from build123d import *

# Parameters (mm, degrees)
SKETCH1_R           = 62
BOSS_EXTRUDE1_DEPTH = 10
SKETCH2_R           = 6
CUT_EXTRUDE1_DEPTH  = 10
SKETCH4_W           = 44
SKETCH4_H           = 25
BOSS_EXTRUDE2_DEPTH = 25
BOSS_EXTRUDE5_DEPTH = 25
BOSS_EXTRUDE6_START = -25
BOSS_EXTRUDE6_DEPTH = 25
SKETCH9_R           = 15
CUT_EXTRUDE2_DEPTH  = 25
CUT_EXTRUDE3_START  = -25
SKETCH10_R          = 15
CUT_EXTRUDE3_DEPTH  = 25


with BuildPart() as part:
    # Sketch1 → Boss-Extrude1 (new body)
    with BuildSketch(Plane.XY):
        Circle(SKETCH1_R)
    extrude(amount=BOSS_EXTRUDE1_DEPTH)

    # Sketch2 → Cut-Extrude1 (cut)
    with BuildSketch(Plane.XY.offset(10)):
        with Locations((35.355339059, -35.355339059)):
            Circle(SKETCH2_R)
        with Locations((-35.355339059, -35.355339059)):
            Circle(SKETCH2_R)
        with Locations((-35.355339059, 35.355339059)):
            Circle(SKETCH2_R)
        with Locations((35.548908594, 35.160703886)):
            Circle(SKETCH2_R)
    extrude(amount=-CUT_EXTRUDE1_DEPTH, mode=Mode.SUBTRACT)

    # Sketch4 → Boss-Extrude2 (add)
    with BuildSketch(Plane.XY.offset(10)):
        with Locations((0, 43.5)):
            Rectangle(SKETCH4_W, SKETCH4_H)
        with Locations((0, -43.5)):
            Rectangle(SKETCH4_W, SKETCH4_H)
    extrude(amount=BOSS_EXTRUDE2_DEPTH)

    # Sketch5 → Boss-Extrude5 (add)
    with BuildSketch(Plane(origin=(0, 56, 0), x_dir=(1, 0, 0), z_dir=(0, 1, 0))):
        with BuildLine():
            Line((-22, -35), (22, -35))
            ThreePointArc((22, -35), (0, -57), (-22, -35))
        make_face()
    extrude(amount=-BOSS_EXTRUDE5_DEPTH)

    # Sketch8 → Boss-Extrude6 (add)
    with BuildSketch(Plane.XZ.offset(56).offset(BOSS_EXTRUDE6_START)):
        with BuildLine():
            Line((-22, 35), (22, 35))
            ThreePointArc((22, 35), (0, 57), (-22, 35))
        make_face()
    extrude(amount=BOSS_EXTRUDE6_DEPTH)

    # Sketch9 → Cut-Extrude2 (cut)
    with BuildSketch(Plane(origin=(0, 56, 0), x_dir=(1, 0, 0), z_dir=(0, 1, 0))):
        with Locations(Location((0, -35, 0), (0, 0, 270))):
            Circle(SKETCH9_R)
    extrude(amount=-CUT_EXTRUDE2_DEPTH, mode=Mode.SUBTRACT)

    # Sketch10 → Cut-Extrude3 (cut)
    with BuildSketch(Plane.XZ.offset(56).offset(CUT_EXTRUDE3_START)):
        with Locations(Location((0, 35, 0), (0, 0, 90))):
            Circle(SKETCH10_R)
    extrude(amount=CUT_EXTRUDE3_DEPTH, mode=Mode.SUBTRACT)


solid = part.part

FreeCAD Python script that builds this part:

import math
import FreeCAD as App
import Part
import Sketcher

doc = App.newDocument("Part")
body = doc.addObject("PartDesign::Body", "Body")

sketch1 = body.newObject("Sketcher::SketchObject", "Sketch")
sketch1.AttachmentSupport = (doc.getObject("XY_Plane"), [""])
sketch1.MapMode = "FlatFace"
sketch1.addGeometry(Part.Circle(App.Vector(0, 0, 0), App.Vector(0, 0, 1), 62), False)
sketch1.addConstraint(Sketcher.Constraint("Coincident", 0, 3, -1, 1))
sketch1.addConstraint(Sketcher.Constraint("Diameter", 0, 124.0))
pad1 = body.newObject("PartDesign::Pad", "Pad")
pad1.Profile = sketch1
pad1.Length = 10

sketch2 = body.newObject("Sketcher::SketchObject", "Sketch001")
sketch2.AttachmentSupport = (doc.getObject("XY_Plane"), [""])
sketch2.MapMode = "FlatFace"
sketch2.AttachmentOffset = App.Placement(App.Vector(0, 0, 10), App.Rotation())
sketch2.addGeometry(Part.Circle(App.Vector(35, -35, 0), App.Vector(0, 0, 1), 6), False)
sketch2.addGeometry(Part.Circle(App.Vector(-35, -35, 0), App.Vector(0, 0, 1), 6), False)
sketch2.addGeometry(Part.Circle(App.Vector(-35, 35, 0), App.Vector(0, 0, 1), 6), False)
sketch2.addGeometry(Part.Circle(App.Vector(36, 35, 0), App.Vector(0, 0, 1), 6), False)
sketch2.addConstraint(Sketcher.Constraint("Equal", 0, 1))
sketch2.addConstraint(Sketcher.Constraint("Equal", 1, 2))
sketch2.addConstraint(Sketcher.Constraint("Equal", 2, 3))
sketch2.addConstraint(Sketcher.Constraint("Symmetric", 0, 3, 2, 3, -1, 1))
sketch2.addConstraint(Sketcher.Constraint("Symmetric", 0, 3, 1, 3, -2))
sketch2.addConstraint(Sketcher.Constraint("Diameter", 0, 12.0))
sketch2.addConstraint(Sketcher.Constraint("DistanceX", -1, 1, 0, 3, 35.355339))
sketch2.addConstraint(Sketcher.Constraint("DistanceY", 0, 3, -1, 1, 35.355339))
sketch2.addConstraint(Sketcher.Constraint("DistanceX", -1, 1, 3, 3, 35.548909))
sketch2.addConstraint(Sketcher.Constraint("DistanceY", -1, 1, 3, 3, 35.160704))
pocket1 = body.newObject("PartDesign::Pocket", "Pocket")
pocket1.Profile = sketch2
pocket1.Length = 10

sketch3 = body.newObject("Sketcher::SketchObject", "Sketch002")
sketch3.AttachmentSupport = (doc.getObject("XY_Plane"), [""])
sketch3.MapMode = "FlatFace"
sketch3.AttachmentOffset = App.Placement(App.Vector(0, 0, 10), App.Rotation())
sketch3.addGeometry(Part.LineSegment(App.Vector(-22, 56, 0), App.Vector(-22, 31, 0)), False)
sketch3.addGeometry(Part.LineSegment(App.Vector(-22, 31, 0), App.Vector(22, 31, 0)), False)
sketch3.addGeometry(Part.LineSegment(App.Vector(22, 31, 0), App.Vector(22, 56, 0)), False)
sketch3.addGeometry(Part.LineSegment(App.Vector(22, 56, 0), App.Vector(-22, 56, 0)), False)
sketch3.addGeometry(Part.LineSegment(App.Vector(-22, -31, 0), App.Vector(-22, -56, 0)), False)
sketch3.addGeometry(Part.LineSegment(App.Vector(-22, -56, 0), App.Vector(22, -56, 0)), False)
sketch3.addGeometry(Part.LineSegment(App.Vector(22, -56, 0), App.Vector(22, -31, 0)), False)
sketch3.addGeometry(Part.LineSegment(App.Vector(22, -31, 0), App.Vector(-22, -31, 0)), False)
sketch3.addConstraint(Sketcher.Constraint("Coincident", 0, 2, 1, 1))
sketch3.addConstraint(Sketcher.Constraint("Coincident", 1, 2, 2, 1))
sketch3.addConstraint(Sketcher.Constraint("Coincident", 2, 2, 3, 1))
sketch3.addConstraint(Sketcher.Constraint("Coincident", 3, 2, 0, 1))
sketch3.addConstraint(Sketcher.Constraint("Coincident", 4, 2, 5, 1))
sketch3.addConstraint(Sketcher.Constraint("Coincident", 5, 2, 6, 1))
sketch3.addConstraint(Sketcher.Constraint("Coincident", 6, 2, 7, 1))
sketch3.addConstraint(Sketcher.Constraint("Coincident", 7, 2, 4, 1))
sketch3.addConstraint(Sketcher.Constraint("Vertical", 0))
sketch3.addConstraint(Sketcher.Constraint("Horizontal", 1))
sketch3.addConstraint(Sketcher.Constraint("Vertical", 2))
sketch3.addConstraint(Sketcher.Constraint("Horizontal", 3))
sketch3.addConstraint(Sketcher.Constraint("Vertical", 4))
sketch3.addConstraint(Sketcher.Constraint("Horizontal", 5))
sketch3.addConstraint(Sketcher.Constraint("Vertical", 6))
sketch3.addConstraint(Sketcher.Constraint("Horizontal", 7))
sketch3.addConstraint(Sketcher.Constraint("Symmetric", 2, 2, 4, 2, -1, 1))
sketch3.addConstraint(Sketcher.Constraint("Symmetric", 0, 2, 6, 2, -1, 1))
sketch3.addConstraint(Sketcher.Constraint("Vertical", 3, 2, 4, 2))
sketch3.addConstraint(Sketcher.Constraint("DistanceX", 1, 1, 1, 2, 44.0))
sketch3.addConstraint(Sketcher.Constraint("DistanceY", 0, 2, 0, 1, 25.0))
sketch3.addConstraint(Sketcher.Constraint("DistanceY", -1, 1, 0, 2, 31.0))
pad2 = body.newObject("PartDesign::Pad", "Pad001")
pad2.Profile = sketch3
pad2.Length = 25

sketch4 = body.newObject("Sketcher::SketchObject", "Sketch003")
sketch4.AttachmentSupport = (doc.getObject("XZ_Plane"), [""])
sketch4.MapMode = "FlatFace"
sketch4.AttachmentOffset = App.Placement(App.Vector(0, 0, -56), App.Rotation())
sketch4.addGeometry(Part.LineSegment(App.Vector(22, 35, 0), App.Vector(-22, 35, 0)), False)
sketch4.addGeometry(Part.ArcOfCircle(Part.Circle(App.Vector(0, 35, 0), App.Vector(0, 0, 1), 22), math.radians(0), math.radians(180)), False)
sketch4.addConstraint(Sketcher.Constraint("Coincident", 0, 1, 1, 1))
sketch4.addConstraint(Sketcher.Constraint("Coincident", 1, 2, 0, 2))
sketch4.addConstraint(Sketcher.Constraint("Horizontal", 0))
sketch4.addConstraint(Sketcher.Constraint("PointOnObject", 1, 3, -2))
sketch4.addConstraint(Sketcher.Constraint("Horizontal", 1, 3, 0, 1))
sketch4.addConstraint(Sketcher.Constraint("Radius", 1, 22.0))
sketch4.addConstraint(Sketcher.Constraint("DistanceY", -1, 1, 1, 3, 35.0))
pad3 = body.newObject("PartDesign::Pad", "Pad002")
pad3.Profile = sketch4
pad3.Length = 25

sketch5 = body.newObject("Sketcher::SketchObject", "Sketch004")
sketch5.AttachmentSupport = (doc.getObject("XZ_Plane"), [""])
sketch5.MapMode = "FlatFace"
sketch5.AttachmentOffset = App.Placement(App.Vector(0, 0, 31), App.Rotation())
sketch5.addGeometry(Part.LineSegment(App.Vector(-22, 35, 0), App.Vector(22, 35, 0)), False)
sketch5.addGeometry(Part.ArcOfCircle(Part.Circle(App.Vector(0, 35, 0), App.Vector(0, 0, 1), 22), math.radians(0), math.radians(180)), False)
sketch5.addConstraint(Sketcher.Constraint("Coincident", 0, 1, 1, 2))
sketch5.addConstraint(Sketcher.Constraint("Coincident", 1, 1, 0, 2))
sketch5.addConstraint(Sketcher.Constraint("Horizontal", 0))
sketch5.addConstraint(Sketcher.Constraint("PointOnObject", 1, 3, -2))
sketch5.addConstraint(Sketcher.Constraint("Horizontal", 1, 3, 0, 1))
sketch5.addConstraint(Sketcher.Constraint("Radius", 1, 22.0))
sketch5.addConstraint(Sketcher.Constraint("DistanceY", -1, 1, 1, 3, 35.0))
pad4 = body.newObject("PartDesign::Pad", "Pad003")
pad4.Profile = sketch5
pad4.Length = 25

sketch6 = body.newObject("Sketcher::SketchObject", "Sketch005")
sketch6.AttachmentSupport = (doc.getObject("XZ_Plane"), [""])
sketch6.MapMode = "FlatFace"
sketch6.AttachmentOffset = App.Placement(App.Vector(0, 0, -56), App.Rotation())
sketch6.addGeometry(Part.Circle(App.Vector(0, 35, 0), App.Vector(0, 0, 1), 15), False)
sketch6.addConstraint(Sketcher.Constraint("PointOnObject", 0, 3, -2))
sketch6.addConstraint(Sketcher.Constraint("Diameter", 0, 30.0))
sketch6.addConstraint(Sketcher.Constraint("DistanceY", -1, 1, 0, 3, 35.0))
pocket2 = body.newObject("PartDesign::Pocket", "Pocket001")
pocket2.Profile = sketch6
pocket2.Length = 25
pocket2.Reversed = True

sketch7 = body.newObject("Sketcher::SketchObject", "Sketch006")
sketch7.AttachmentSupport = (doc.getObject("XZ_Plane"), [""])
sketch7.MapMode = "FlatFace"
sketch7.AttachmentOffset = App.Placement(App.Vector(0, 0, 31), App.Rotation())
sketch7.addGeometry(Part.Circle(App.Vector(0, 35, 0), App.Vector(0, 0, 1), 15), False)
sketch7.addConstraint(Sketcher.Constraint("PointOnObject", 0, 3, -2))
sketch7.addConstraint(Sketcher.Constraint("Diameter", 0, 30.0))
sketch7.addConstraint(Sketcher.Constraint("DistanceY", -1, 1, 0, 3, 35.0))
pocket3 = body.newObject("PartDesign::Pocket", "Pocket002")
pocket3.Profile = sketch7
pocket3.Length = 25
pocket3.Reversed = True

doc.recompute()
